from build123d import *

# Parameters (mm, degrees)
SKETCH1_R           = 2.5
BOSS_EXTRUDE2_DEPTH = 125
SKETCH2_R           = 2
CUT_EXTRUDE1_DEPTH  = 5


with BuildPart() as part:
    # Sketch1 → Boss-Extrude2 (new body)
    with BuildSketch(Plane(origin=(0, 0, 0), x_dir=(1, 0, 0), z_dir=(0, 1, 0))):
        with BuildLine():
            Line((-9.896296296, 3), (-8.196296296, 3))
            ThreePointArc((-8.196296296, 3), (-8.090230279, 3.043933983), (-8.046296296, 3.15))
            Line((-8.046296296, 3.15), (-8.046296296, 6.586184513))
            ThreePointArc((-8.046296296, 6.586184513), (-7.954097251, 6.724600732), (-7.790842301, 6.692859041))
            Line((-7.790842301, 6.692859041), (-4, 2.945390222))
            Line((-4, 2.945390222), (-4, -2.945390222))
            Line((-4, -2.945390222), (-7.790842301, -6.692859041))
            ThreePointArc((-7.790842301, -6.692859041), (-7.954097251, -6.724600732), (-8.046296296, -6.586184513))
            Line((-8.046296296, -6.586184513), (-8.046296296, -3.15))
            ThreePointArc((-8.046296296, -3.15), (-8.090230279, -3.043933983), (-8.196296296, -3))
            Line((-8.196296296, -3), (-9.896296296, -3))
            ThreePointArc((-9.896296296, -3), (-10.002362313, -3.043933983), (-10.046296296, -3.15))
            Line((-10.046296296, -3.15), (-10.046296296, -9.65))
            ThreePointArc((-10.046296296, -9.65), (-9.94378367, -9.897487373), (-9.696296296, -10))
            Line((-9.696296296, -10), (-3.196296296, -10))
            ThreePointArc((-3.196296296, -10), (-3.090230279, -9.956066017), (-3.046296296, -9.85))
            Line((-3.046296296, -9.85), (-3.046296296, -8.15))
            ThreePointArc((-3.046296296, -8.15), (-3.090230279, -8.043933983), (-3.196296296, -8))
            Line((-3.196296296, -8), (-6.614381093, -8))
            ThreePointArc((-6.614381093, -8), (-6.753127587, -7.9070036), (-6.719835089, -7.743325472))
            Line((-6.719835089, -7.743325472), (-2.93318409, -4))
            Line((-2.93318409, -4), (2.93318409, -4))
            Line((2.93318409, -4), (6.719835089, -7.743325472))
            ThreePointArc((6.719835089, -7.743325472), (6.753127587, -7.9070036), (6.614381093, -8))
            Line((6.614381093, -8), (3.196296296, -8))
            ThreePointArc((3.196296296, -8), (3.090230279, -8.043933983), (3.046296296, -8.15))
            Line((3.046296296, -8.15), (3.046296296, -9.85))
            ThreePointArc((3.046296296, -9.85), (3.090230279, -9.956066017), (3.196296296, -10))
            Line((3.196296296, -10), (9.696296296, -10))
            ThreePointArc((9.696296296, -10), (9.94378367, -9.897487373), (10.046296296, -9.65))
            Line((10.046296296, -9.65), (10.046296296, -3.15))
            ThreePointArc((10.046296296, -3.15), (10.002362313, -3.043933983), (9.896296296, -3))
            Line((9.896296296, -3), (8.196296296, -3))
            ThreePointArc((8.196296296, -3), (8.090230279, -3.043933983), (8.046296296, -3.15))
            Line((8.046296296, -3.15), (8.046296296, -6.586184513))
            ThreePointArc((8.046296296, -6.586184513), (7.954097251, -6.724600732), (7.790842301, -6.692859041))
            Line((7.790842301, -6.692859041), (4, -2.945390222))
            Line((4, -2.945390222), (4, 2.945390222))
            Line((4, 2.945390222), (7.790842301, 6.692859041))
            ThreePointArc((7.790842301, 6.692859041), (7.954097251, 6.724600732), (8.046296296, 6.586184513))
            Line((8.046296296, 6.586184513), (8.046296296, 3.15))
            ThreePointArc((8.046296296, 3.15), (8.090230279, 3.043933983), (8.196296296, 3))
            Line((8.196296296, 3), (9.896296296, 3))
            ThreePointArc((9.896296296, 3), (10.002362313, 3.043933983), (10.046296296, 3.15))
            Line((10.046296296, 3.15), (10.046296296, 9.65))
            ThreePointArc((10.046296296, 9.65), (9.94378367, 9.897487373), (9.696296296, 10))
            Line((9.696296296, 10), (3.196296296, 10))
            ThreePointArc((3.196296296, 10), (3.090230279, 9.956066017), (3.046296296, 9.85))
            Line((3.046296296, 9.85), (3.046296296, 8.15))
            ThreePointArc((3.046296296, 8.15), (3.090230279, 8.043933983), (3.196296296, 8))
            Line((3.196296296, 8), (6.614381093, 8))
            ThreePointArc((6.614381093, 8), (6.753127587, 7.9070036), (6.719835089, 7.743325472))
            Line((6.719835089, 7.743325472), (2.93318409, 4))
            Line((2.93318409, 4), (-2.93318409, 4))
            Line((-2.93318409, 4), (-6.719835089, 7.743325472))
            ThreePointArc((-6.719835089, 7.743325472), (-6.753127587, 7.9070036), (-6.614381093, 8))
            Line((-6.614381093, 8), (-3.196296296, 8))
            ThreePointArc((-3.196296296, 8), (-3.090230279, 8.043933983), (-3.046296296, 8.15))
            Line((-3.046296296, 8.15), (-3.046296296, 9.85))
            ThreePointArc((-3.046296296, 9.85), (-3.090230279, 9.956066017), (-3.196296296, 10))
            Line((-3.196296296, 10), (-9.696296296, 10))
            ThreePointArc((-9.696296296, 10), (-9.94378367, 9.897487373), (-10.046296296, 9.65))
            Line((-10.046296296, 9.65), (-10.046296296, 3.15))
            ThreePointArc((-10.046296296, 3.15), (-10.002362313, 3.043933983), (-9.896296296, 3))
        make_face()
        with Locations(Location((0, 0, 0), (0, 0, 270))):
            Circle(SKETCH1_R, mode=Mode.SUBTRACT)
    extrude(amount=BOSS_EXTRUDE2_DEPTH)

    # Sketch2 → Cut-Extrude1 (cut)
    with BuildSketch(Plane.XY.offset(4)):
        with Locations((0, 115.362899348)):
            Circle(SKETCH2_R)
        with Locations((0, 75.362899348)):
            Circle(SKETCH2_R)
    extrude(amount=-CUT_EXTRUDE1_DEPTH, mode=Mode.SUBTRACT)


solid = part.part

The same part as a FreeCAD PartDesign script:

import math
import FreeCAD as App
import Part
import Sketcher
from FreeCAD import Vector

doc = App.newDocument("Part")
body = doc.addObject("PartDesign::Body", "Body")

sketch1 = body.newObject("Sketcher::SketchObject", "Sketch")
sketch1.AttachmentSupport = (doc.getObject("XZ_Plane"), [""])
sketch1.MapMode = "FlatFace"
sketch1.addGeometry(Part.LineSegment(Vector(-9.9, -3, 0), Vector(-8.2, -3, 0)), False)
sketch1.addGeometry(Part.ArcOfCircle(Part.Circle(Vector(-8.2, -3.15, 0), Vector(0, 0, 1), 0.15), math.radians(0), math.radians(90)), False)
sketch1.addGeometry(Part.LineSegment(Vector(-8.05, -3.15, 0), Vector(-8.05, -6.59, 0)), False)
sketch1.addGeometry(Part.ArcOfCircle(Part.Circle(Vector(-7.9, -6.59, 0), Vector(0, 0, 1), 0.15), math.radians(180), math.radians(315)), False)
sketch1.addGeometry(Part.LineSegment(Vector(-7.79, -6.69, 0), Vector(-4, -2.95, 0)), False)
sketch1.addGeometry(Part.LineSegment(Vector(-4, -2.95, 0), Vector(-4, 2.95, 0)), False)
sketch1.addGeometry(Part.LineSegment(Vector(-4, 2.95, 0), Vector(-7.79, 6.69, 0)), False)
sketch1.addGeometry(Part.ArcOfCircle(Part.Circle(Vector(-7.9, 6.59, 0), Vector(0, 0, 1), 0.15), math.radians(45), math.radians(180)), False)
sketch1.addGeometry(Part.LineSegment(Vector(-8.05, 6.59, 0), Vector(-8.05, 3.15, 0)), False)
sketch1.addGeometry(Part.ArcOfCircle(Part.Circle(Vector(-8.2, 3.15, 0), Vector(0, 0, 1), 0.15), math.radians(-90), math.radians(0)), False)
sketch1.addGeometry(Part.LineSegment(Vector(-8.2, 3, 0), Vector(-9.9, 3, 0)), False)
sketch1.addGeometry(Part.ArcOfCircle(Part.Circle(Vector(-9.9, 3.15, 0), Vector(0, 0, 1), 0.15), math.radians(-180), math.radians(-90)), False)
sketch1.addGeometry(Part.LineSegment(Vector(-10.05, 3.15, 0), Vector(-10.05, 9.65, 0)), False)
sketch1.addGeometry(Part.ArcOfCircle(Part.Circle(Vector(-9.7, 9.65, 0), Vector(0, 0, 1), 0.35), math.radians(90), math.radians(180)), False)
sketch1.addGeometry(Part.LineSegment(Vector(-9.7, 10, 0), Vector(-3.2, 10, 0)), False)
sketch1.addGeometry(Part.ArcOfCircle(Part.Circle(Vector(-3.2, 9.85, 0), Vector(0, 0, 1), 0.15), math.radians(0), math.radians(90)), False)
sketch1.addGeometry(Part.LineSegment(Vector(-3.05, 9.85, 0), Vector(-3.05, 8.15, 0)), False)
sketch1.addGeometry(Part.ArcOfCircle(Part.Circle(Vector(-3.2, 8.15, 0), Vector(0, 0, 1), 0.15), math.radians(-90), math.radians(0)), False)
sketch1.addGeometry(Part.LineSegment(Vector(-3.2, 8, 0), Vector(-6.61, 8, 0)), False)
sketch1.addGeometry(Part.ArcOfCircle(Part.Circle(Vector(-6.61, 7.85, 0), Vector(0, 0, 1), 0.15), math.radians(90), math.radians(225)), False)
sketch1.addGeometry(Part.LineSegment(Vector(-6.72, 7.74, 0), Vector(-2.93, 4, 0)), False)
sketch1.addGeometry(Part.LineSegment(Vector(-2.93, 4, 0), Vector(2.93, 4, 0)), False)
sketch1.addGeometry(Part.LineSegment(Vector(2.93, 4, 0), Vector(6.72, 7.74, 0)), False)
sketch1.addGeometry(Part.ArcOfCircle(Part.Circle(Vector(6.61, 7.85, 0), Vector(0, 0, 1), 0.15), math.radians(-45), math.radians(90)), False)
sketch1.addGeometry(Part.LineSegment(Vector(6.61, 8, 0), Vector(3.2, 8, 0)), False)
sketch1.addGeometry(Part.ArcOfCircle(Part.Circle(Vector(3.2, 8.15, 0), Vector(0, 0, 1), 0.15), math.radians(-180), math.radians(-90)), False)
sketch1.addGeometry(Part.LineSegment(Vector(3.05, 8.15, 0), Vector(3.05, 9.85, 0)), False)
sketch1.addGeometry(Part.ArcOfCircle(Part.Circle(Vector(3.2, 9.85, 0), Vector(0, 0, 1), 0.15), math.radians(90), math.radians(180)), False)
sketch1.addGeometry(Part.LineSegment(Vector(3.2, 10, 0), Vector(9.7, 10, 0)), False)
sketch1.addGeometry(Part.ArcOfCircle(Part.Circle(Vector(9.7, 9.65, 0), Vector(0, 0, 1), 0.35), math.radians(0), math.radians(90)), False)
sketch1.addGeometry(Part.LineSegment(Vector(10.05, 9.65, 0), Vector(10.05, 3.15, 0)), False)
sketch1.addGeometry(Part.ArcOfCircle(Part.Circle(Vector(9.9, 3.15, 0), Vector(0, 0, 1), 0.15), math.radians(-90), math.radians(0)), False)
sketch1.addGeometry(Part.LineSegment(Vector(9.9, 3, 0), Vector(8.2, 3, 0)), False)
sketch1.addGeometry(Part.ArcOfCircle(Part.Circle(Vector(8.2, 3.15, 0), Vector(0, 0, 1), 0.15), math.radians(-180), math.radians(-90)), False)
sketch1.addGeometry(Part.LineSegment(Vector(8.05, 3.15, 0), Vector(8.05, 6.59, 0)), False)
sketch1.addGeometry(Part.ArcOfCircle(Part.Circle(Vector(7.9, 6.59, 0), Vector(0, 0, 1), 0.15), math.radians(0), math.radians(135)), False)
sketch1.addGeometry(Part.LineSegment(Vector(7.79, 6.69, 0), Vector(4, 2.95, 0)), False)
sketch1.addGeometry(Part.LineSegment(Vector(4, 2.95, 0), Vector(4, -2.95, 0)), False)
sketch1.addGeometry(Part.LineSegment(Vector(4, -2.95, 0), Vector(7.79, -6.69, 0)), False)
sketch1.addGeometry(Part.ArcOfCircle(Part.Circle(Vector(7.9, -6.59, 0), Vector(0, 0, 1), 0.15), math.radians(-135), math.radians(0)), False)
sketch1.addGeometry(Part.LineSegment(Vector(8.05, -6.59, 0), Vector(8.05, -3.15, 0)), False)
sketch1.addGeometry(Part.ArcOfCircle(Part.Circle(Vector(8.2, -3.15, 0), Vector(0, 0, 1), 0.15), math.radians(90), math.radians(180)), False)
sketch1.addGeometry(Part.LineSegment(Vector(8.2, -3, 0), Vector(9.9, -3, 0)), False)
sketch1.addGeometry(Part.ArcOfCircle(Part.Circle(Vector(9.9, -3.15, 0), Vector(0, 0, 1), 0.15), math.radians(0), math.radians(90)), False)
sketch1.addGeometry(Part.LineSegment(Vector(10.05, -3.15, 0), Vector(10.05, -9.65, 0)), False)
sketch1.addGeometry(Part.ArcOfCircle(Part.Circle(Vector(9.7, -9.65, 0), Vector(0, 0, 1), 0.35), math.radians(-90), math.radians(0)), False)
sketch1.addGeometry(Part.LineSegment(Vector(9.7, -10, 0), Vector(3.2, -10, 0)), False)
sketch1.addGeometry(Part.ArcOfCircle(Part.Circle(Vector(3.2, -9.85, 0), Vector(0, 0, 1), 0.15), math.radians(-180), math.radians(-90)), False)
sketch1.addGeometry(Part.LineSegment(Vector(3.05, -9.85, 0), Vector(3.05, -8.15, 0)), False)
sketch1.addGeometry(Part.ArcOfCircle(Part.Circle(Vector(3.2, -8.15, 0), Vector(0, 0, 1), 0.15), math.radians(90), math.radians(180)), False)
sketch1.addGeometry(Part.LineSegment(Vector(3.2, -8, 0), Vector(6.61, -8, 0)), False)
sketch1.addGeometry(Part.ArcOfCircle(Part.Circle(Vector(6.61, -7.85, 0), Vector(0, 0, 1), 0.15), math.radians(-90), math.radians(45)), False)
sketch1.addGeometry(Part.LineSegment(Vector(6.72, -7.74, 0), Vector(2.93, -4, 0)), False)
sketch1.addGeometry(Part.LineSegment(Vector(2.93, -4, 0), Vector(-2.93, -4, 0)), False)
sketch1.addGeometry(Part.LineSegment(Vector(-2.93, -4, 0), Vector(-6.72, -7.74, 0)), False)
sketch1.addGeometry(Part.ArcOfCircle(Part.Circle(Vector(-6.61, -7.85, 0), Vector(0, 0, 1), 0.15), math.radians(135), math.radians(270)), False)
sketch1.addGeometry(Part.LineSegment(Vector(-6.61, -8, 0), Vector(-3.2, -8, 0)), False)
sketch1.addGeometry(Part.ArcOfCircle(Part.Circle(Vector(-3.2, -8.15, 0), Vector(0, 0, 1), 0.15), math.radians(0), math.radians(90)), False)
sketch1.addGeometry(Part.LineSegment(Vector(-3.05, -8.15, 0), Vector(-3.05, -9.85, 0)), False)
sketch1.addGeometry(Part.ArcOfCircle(Part.Circle(Vector(-3.2, -9.85, 0), Vector(0, 0, 1), 0.15), math.radians(-90), math.radians(0)), False)
sketch1.addGeometry(Part.LineSegment(Vector(-3.2, -10, 0), Vector(-9.7, -10, 0)), False)
sketch1.addGeometry(Part.ArcOfCircle(Part.Circle(Vector(-9.7, -9.65, 0), Vector(0, 0, 1), 0.35), math.radians(180), math.radians(270)), False)
sketch1.addGeometry(Part.LineSegment(Vector(-10.05, -9.65, 0), Vector(-10.05, -3.15, 0)), False)
sketch1.addGeometry(Part.ArcOfCircle(Part.Circle(Vector(-9.9, -3.15, 0), Vector(0, 0, 1), 0.15), math.radians(90), math.radians(180)), False)
sketch1.addGeometry(Part.Circle(Vector(0, 0, 0), Vector(0, 0, 1), 2.5), False)
sketch1.addConstraint(Sketcher.Constraint("Tangent", 0, 2, 1, 2))
sketch1.addConstraint(Sketcher.Constraint("Tangent", 1, 1, 2, 1))
sketch1.addConstraint(Sketcher.Constraint("Tangent", 2, 2, 3, 1))
sketch1.addConstraint(Sketcher.Constraint("Tangent", 3, 2, 4, 1))
sketch1.addConstraint(Sketcher.Constraint("Coincident", 4, 2, 5, 1))
sketch1.addConstraint(Sketcher.Constraint("Coincident", 5, 2, 6, 1))
sketch1.addConstraint(Sketcher.Constraint("Tangent", 6, 2, 7, 1))
sketch1.addConstraint(Sketcher.Constraint("Tangent", 7, 2, 8, 1))
sketch1.addConstraint(Sketcher.Constraint("Tangent", 8, 2, 9, 2))
sketch1.addConstraint(Sketcher.Constraint("Tangent", 9, 1, 10, 1))
sketch1.addConstraint(Sketcher.Constraint("Tangent", 10, 2, 11, 2))
sketch1.addConstraint(Sketcher.Constraint("Tangent", 11, 1, 12, 1))
sketch1.addConstraint(Sketcher.Constraint("Tangent", 12, 2, 13, 2))
sketch1.addConstraint(Sketcher.Constraint("Tangent", 13, 1, 14, 1))
sketch1.addConstraint(Sketcher.Constraint("Tangent", 14, 2, 15, 2))
sketch1.addConstraint(Sketcher.Constraint("Tangent", 15, 1, 16, 1))
sketch1.addConstraint(Sketcher.Constraint("Tangent", 16, 2, 17, 2))
sketch1.addConstraint(Sketcher.Constraint("Tangent", 17, 1, 18, 1))
sketch1.addConstraint(Sketcher.Constraint("Tangent", 18, 2, 19, 1))
sketch1.addConstraint(Sketcher.Constraint("Tangent", 19, 2, 20, 1))
sketch1.addConstraint(Sketcher.Constraint("Coincident", 20, 2, 21, 1))
sketch1.addConstraint(Sketcher.Constraint("Coincident", 21, 2, 22, 1))
sketch1.addConstraint(Sketcher.Constraint("Tangent", 22, 2, 23, 1))
sketch1.addConstraint(Sketcher.Constraint("Tangent", 23, 2, 24, 1))
sketch1.addConstraint(Sketcher.Constraint("Tangent", 24, 2, 25, 2))
sketch1.addConstraint(Sketcher.Constraint("Tangent", 25, 1, 26, 1))
sketch1.addConstraint(Sketcher.Constraint("Tangent", 26, 2, 27, 2))
sketch1.addConstraint(Sketcher.Constraint("Tangent", 27, 1, 28, 1))
sketch1.addConstraint(Sketcher.Constraint("Tangent", 28, 2, 29, 2))
sketch1.addConstraint(Sketcher.Constraint("Tangent", 29, 1, 30, 1))
sketch1.addConstraint(Sketcher.Constraint("Tangent", 30, 2, 31, 2))
sketch1.addConstraint(Sketcher.Constraint("Tangent", 31, 1, 32, 1))
sketch1.addConstraint(Sketcher.Constraint("Tangent", 32, 2, 33, 2))
sketch1.addConstraint(Sketcher.Constraint("Tangent", 33, 1, 34, 1))
sketch1.addConstraint(Sketcher.Constraint("Tangent", 34, 2, 35, 1))
sketch1.addConstraint(Sketcher.Constraint("Tangent", 35, 2, 36, 1))
sketch1.addConstraint(Sketcher.Constraint("Coincident", 36, 2, 37, 1))
sketch1.addConstraint(Sketcher.Constraint("Coincident", 37, 2, 38, 1))
sketch1.addConstraint(Sketcher.Constraint("Tangent", 38, 2, 39, 1))
sketch1.addConstraint(Sketcher.Constraint("Tangent", 39, 2, 40, 1))
sketch1.addConstraint(Sketcher.Constraint("Tangent", 40, 2, 41, 2))
sketch1.addConstraint(Sketcher.Constraint("Tangent", 41, 1, 42, 1))
sketch1.addConstraint(Sketcher.Constraint("Tangent", 42, 2, 43, 2))
sketch1.addConstraint(Sketcher.Constraint("Tangent", 43, 1, 44, 1))
sketch1.addConstraint(Sketcher.Constraint("Tangent", 44, 2, 45, 2))
sketch1.addConstraint(Sketcher.Constraint("Tangent", 45, 1, 46, 1))
sketch1.addConstraint(Sketcher.Constraint("Tangent", 46, 2, 47, 2))
sketch1.addConstraint(Sketcher.Constraint("Tangent", 47, 1, 48, 1))
sketch1.addConstraint(Sketcher.Constraint("Tangent", 48, 2, 49, 2))
sketch1.addConstraint(Sketcher.Constraint("Tangent", 49, 1, 50, 1))
sketch1.addConstraint(Sketcher.Constraint("Tangent", 50, 2, 51, 1))
sketch1.addConstraint(Sketcher.Constraint("Tangent", 51, 2, 52, 1))
sketch1.addConstraint(Sketcher.Constraint("Coincident", 52, 2, 53, 1))
sketch1.addConstraint(Sketcher.Constraint("Coincident", 53, 2, 54, 1))
sketch1.addConstraint(Sketcher.Constraint("Tangent", 54, 2, 55, 1))
sketch1.addConstraint(Sketcher.Constraint("Tangent", 55, 2, 56, 1))
sketch1.addConstraint(Sketcher.Constraint("Tangent", 56, 2, 57, 2))
sketch1.addConstraint(Sketcher.Constraint("Tangent", 57, 1, 58, 1))
sketch1.addConstraint(Sketcher.Constraint("Tangent", 58, 2, 59, 2))
sketch1.addConstraint(Sketcher.Constraint("Tangent", 59, 1, 60, 1))
sketch1.addConstraint(Sketcher.Constraint("Tangent", 60, 2, 61, 2))
sketch1.addConstraint(Sketcher.Constraint("Tangent", 61, 1, 62, 1))
sketch1.addConstraint(Sketcher.Constraint("Tangent", 62, 2, 63, 2))
sketch1.addConstraint(Sketcher.Constraint("Tangent", 63, 1, 0, 1))
sketch1.addConstraint(Sketcher.Constraint("Horizontal", 0))
sketch1.addConstraint(Sketcher.Constraint("Vertical", 2))
sketch1.addConstraint(Sketcher.Constraint("Vertical", 5))
sketch1.addConstraint(Sketcher.Constraint("Vertical", 8))
sketch1.addConstraint(Sketcher.Constraint("Horizontal", 10))
sketch1.addConstraint(Sketcher.Constraint("Vertical", 12))
sketch1.addConstraint(Sketcher.Constraint("Horizontal", 14))
sketch1.addConstraint(Sketcher.Constraint("Vertical", 16))
sketch1.addConstraint(Sketcher.Constraint("Horizontal", 18))
sketch1.addConstraint(Sketcher.Constraint("Horizontal", 21))
sketch1.addConstraint(Sketcher.Constraint("Horizontal", 24))
sketch1.addConstraint(Sketcher.Constraint("Vertical", 26))
sketch1.addConstraint(Sketcher.Constraint("Horizontal", 28))
sketch1.addConstraint(Sketcher.Constraint("Vertical", 30))
sketch1.addConstraint(Sketcher.Constraint("Horizontal", 32))
sketch1.addConstraint(Sketcher.Constraint("Vertical", 34))
sketch1.addConstraint(Sketcher.Constraint("Vertical", 37))
sketch1.addConstraint(Sketcher.Constraint("Vertical", 40))
sketch1.addConstraint(Sketcher.Constraint("Horizontal", 42))
sketch1.addConstraint(Sketcher.Constraint("Vertical", 44))
sketch1.addConstraint(Sketcher.Constraint("Horizontal", 46))
sketch1.addConstraint(Sketcher.Constraint("Vertical", 48))
sketch1.addConstraint(Sketcher.Constraint("Horizontal", 50))
sketch1.addConstraint(Sketcher.Constraint("Horizontal", 53))
sketch1.addConstraint(Sketcher.Constraint("Horizontal", 56))
sketch1.addConstraint(Sketcher.Constraint("Vertical", 58))
sketch1.addConstraint(Sketcher.Constraint("Horizontal", 60))
sketch1.addConstraint(Sketcher.Constraint("Vertical", 62))
sketch1.addConstraint(Sketcher.Constraint("Coincident", 64, 3, -1, 1))
sketch1.addConstraint(Sketcher.Constraint("Equal", 1, 3))
sketch1.addConstraint(Sketcher.Constraint("Equal", 3, 7))
sketch1.addConstraint(Sketcher.Constraint("Equal", 7, 9))
sketch1.addConstraint(Sketcher.Constraint("Equal", 9, 11))
sketch1.addConstraint(Sketcher.Constraint("Equal", 11, 15))
sketch1.addConstraint(Sketcher.Constraint("Equal", 15, 17))
sketch1.addConstraint(Sketcher.Constraint("Equal", 17, 19))
sketch1.addConstraint(Sketcher.Constraint("Equal", 19, 23))
sketch1.addConstraint(Sketcher.Constraint("Equal", 23, 25))
sketch1.addConstraint(Sketcher.Constraint("Equal", 25, 27))
sketch1.addConstraint(Sketcher.Constraint("Equal", 13, 29))
sketch1.addConstraint(Sketcher.Constraint("Equal", 27, 31))
sketch1.addConstraint(Sketcher.Constraint("Equal", 31, 33))
sketch1.addConstraint(Sketcher.Constraint("Equal", 33, 35))
sketch1.addConstraint(Sketcher.Constraint("Equal", 35, 39))
sketch1.addConstraint(Sketcher.Constraint("Equal", 39, 41))
sketch1.addConstraint(Sketcher.Constraint("Equal", 41, 43))
sketch1.addConstraint(Sketcher.Constraint("Equal", 29, 45))
sketch1.addConstraint(Sketcher.Constraint("Equal", 43, 47))
sketch1.addConstraint(Sketcher.Constraint("Equal", 47, 49))
sketch1.addConstraint(Sketcher.Constraint("Equal", 49, 51))
sketch1.addConstraint(Sketcher.Constraint("Equal", 51, 55))
sketch1.addConstraint(Sketcher.Constraint("Equal", 55, 57))
sketch1.addConstraint(Sketcher.Constraint("Equal", 57, 59))
sketch1.addConstraint(Sketcher.Constraint("Equal", 45, 61))
sketch1.addConstraint(Sketcher.Constraint("Equal", 59, 63))
sketch1.addConstraint(Sketcher.Constraint("Symmetric", 1, 3, 33, 3, -1, 1))
sketch1.addConstraint(Sketcher.Constraint("Symmetric", 7, 3, 39, 3, -1, 1))
sketch1.addConstraint(Sketcher.Constraint("Symmetric", 11, 3, 43, 3, -1, 1))
sketch1.addConstraint(Sketcher.Constraint("Symmetric", 15, 3, 47, 3, -1, 1))
sketch1.addConstraint(Sketcher.Constraint("Symmetric", 19, 3, 51, 3, -1, 1))
sketch1.addConstraint(Sketcher.Constraint("Symmetric", 23, 3, 55, 3, -1, 1))
sketch1.addConstraint(Sketcher.Constraint("Symmetric", 27, 3, 59, 3, -1, 1))
sketch1.addConstraint(Sketcher.Constraint("Symmetric", 3, 2, 35, 2, -1, 1))
sketch1.addConstraint(Sketcher.Constraint("Symmetric", 5, 2, 37, 2, -1, 1))
sketch1.addConstraint(Sketcher.Constraint("Symmetric", 20, 2, 52, 2, -1, 1))
sketch1.addConstraint(Sketcher.Constraint("Symmetric", 19, 3, 23, 3, -2))
sketch1.addConstraint(Sketcher.Constraint("Symmetric", 15, 3, 27, 3, -2))
sketch1.addConstraint(Sketcher.Constraint("Symmetric", 11, 3, 31, 3, -2))
sketch1.addConstraint(Sketcher.Constraint("Symmetric", 7, 3, 35, 3, -2))
sketch1.addConstraint(Sketcher.Constraint("Parallel", 6, 20))
sketch1.addConstraint(Sketcher.Constraint("Parallel", 4, 22))
sketch1.addConstraint(Sketcher.Constraint("Parallel", 36, 54))
sketch1.addConstraint(Sketcher.Constraint("Horizontal", 19, 2, 22, 2))
sketch1.addConstraint(Sketcher.Constraint("Vertical", 13, 3, 61, 3))
sketch1.addConstraint(Sketcher.Constraint("Equal", 60, 12))
sketch1.addConstraint(Sketcher.Constraint("Equal", 42, 16))
sketch1.addConstraint(Sketcher.Constraint("Diameter", 64, 5.0))
sketch1.addConstraint(Sketcher.Constraint("Radius", 1, 0.15))
sketch1.addConstraint(Sketcher.Constraint("Radius", 13, 0.35))
sketch1.addConstraint(Sketcher.Constraint("DistanceX", 0, 1, 0, 2, 1.7))
sketch1.addConstraint(Sketcher.Constraint("DistanceX", 14, 1, 14, 2, 6.5))
sketch1.addConstraint(Sketcher.Constraint("DistanceY", 0, 2, -1, 1, 3.0))
sketch1.addConstraint(Sketcher.Constraint("DistanceX", 4, 2, -1, 1, 4.0))
sketch1.addConstraint(Sketcher.Constraint("DistanceY", -1, 1, 20, 2, 4.0))
sketch1.addConstraint(Sketcher.Constraint("DistanceX", 21, 1, 21, 2, 5.866368))
sketch1.addConstraint(Sketcher.Constraint("DistanceY", 5, 1, 5, 2, 5.89078))
sketch1.addConstraint(Sketcher.Constraint("Distance", 4, 5.330479))
sketch1.addConstraint(Sketcher.Constraint("DistanceX", 18, 2, 18, 1, 3.418085))
pad1 = body.newObject("PartDesign::Pad", "Pad")
pad1.Profile = sketch1
pad1.Length = 125
pad1.Reversed = True

sketch2 = body.newObject("Sketcher::SketchObject", "Sketch001")
sketch2.AttachmentSupport = (doc.getObject("XY_Plane"), [""])
sketch2.MapMode = "FlatFace"
sketch2.AttachmentOffset = App.Placement(Vector(0, 0, 4), App.Rotation())
sketch2.addGeometry(Part.Circle(Vector(0, 115.4, 0), Vector(0, 0, 1), 2), False)
sketch2.addGeometry(Part.Circle(Vector(0, 75.4, 0), Vector(0, 0, 1), 2), False)
sketch2.addConstraint(Sketcher.Constraint("Equal", 0, 1))
sketch2.addConstraint(Sketcher.Constraint("PointOnObject", 0, 3, -2))
sketch2.addConstraint(Sketcher.Constraint("PointOnObject", 1, 3, -2))
sketch2.addConstraint(Sketcher.Constraint("Diameter", 0, 4.0))
sketch2.addConstraint(Sketcher.Constraint("DistanceY", 1, 3, 0, 3, 40.0))
sketch2.addConstraint(Sketcher.Constraint("DistanceY", -1, 1, 0, 3, 115.362899))
pocket1 = body.newObject("PartDesign::Pocket", "Pocket")
pocket1.Profile = sketch2
pocket1.Length = 5

doc.recompute()
